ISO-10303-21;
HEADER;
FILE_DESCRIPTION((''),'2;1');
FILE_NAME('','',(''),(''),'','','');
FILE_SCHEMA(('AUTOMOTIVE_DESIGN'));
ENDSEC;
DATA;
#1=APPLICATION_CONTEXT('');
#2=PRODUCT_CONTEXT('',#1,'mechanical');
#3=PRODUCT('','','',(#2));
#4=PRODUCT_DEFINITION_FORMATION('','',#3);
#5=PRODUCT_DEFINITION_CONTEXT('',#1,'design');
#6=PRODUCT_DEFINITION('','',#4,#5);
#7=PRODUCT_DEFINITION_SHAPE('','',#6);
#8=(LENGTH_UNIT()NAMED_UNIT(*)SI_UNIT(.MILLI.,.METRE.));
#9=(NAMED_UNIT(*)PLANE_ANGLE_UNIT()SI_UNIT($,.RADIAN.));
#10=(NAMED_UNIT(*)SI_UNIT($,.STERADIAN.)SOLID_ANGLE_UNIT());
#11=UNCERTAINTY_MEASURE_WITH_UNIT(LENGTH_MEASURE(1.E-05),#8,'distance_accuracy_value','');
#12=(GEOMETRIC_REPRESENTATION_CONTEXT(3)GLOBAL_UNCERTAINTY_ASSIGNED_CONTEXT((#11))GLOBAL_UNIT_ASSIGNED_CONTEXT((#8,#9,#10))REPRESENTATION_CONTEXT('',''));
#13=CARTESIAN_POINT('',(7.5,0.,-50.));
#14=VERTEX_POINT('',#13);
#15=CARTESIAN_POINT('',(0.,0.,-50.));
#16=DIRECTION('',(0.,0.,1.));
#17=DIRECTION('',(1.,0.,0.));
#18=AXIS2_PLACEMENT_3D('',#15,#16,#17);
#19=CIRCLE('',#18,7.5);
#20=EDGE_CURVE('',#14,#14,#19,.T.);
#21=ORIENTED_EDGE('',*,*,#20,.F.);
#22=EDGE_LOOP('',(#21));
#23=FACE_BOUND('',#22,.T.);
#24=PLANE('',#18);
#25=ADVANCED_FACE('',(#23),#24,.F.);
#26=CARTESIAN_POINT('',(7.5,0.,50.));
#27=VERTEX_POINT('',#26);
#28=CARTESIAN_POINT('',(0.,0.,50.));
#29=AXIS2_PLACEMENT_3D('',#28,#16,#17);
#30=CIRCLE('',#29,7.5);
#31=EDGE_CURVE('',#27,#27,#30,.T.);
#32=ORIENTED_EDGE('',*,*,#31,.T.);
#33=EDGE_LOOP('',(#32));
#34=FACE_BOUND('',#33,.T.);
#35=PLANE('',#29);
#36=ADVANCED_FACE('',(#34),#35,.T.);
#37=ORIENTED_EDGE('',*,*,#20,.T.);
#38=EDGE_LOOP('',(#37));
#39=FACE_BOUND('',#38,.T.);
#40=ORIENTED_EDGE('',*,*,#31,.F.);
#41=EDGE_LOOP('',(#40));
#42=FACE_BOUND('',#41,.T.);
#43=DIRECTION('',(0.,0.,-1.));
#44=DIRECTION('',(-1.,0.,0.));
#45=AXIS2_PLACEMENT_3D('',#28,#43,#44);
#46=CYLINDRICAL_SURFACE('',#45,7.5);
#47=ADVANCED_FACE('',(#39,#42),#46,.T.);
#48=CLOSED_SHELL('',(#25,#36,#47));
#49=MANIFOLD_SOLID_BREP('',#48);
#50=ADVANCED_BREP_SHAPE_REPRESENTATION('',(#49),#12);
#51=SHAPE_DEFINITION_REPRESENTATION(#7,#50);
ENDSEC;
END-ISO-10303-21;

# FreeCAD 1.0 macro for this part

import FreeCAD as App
import Part
import Sketcher

doc = App.newDocument("Part")
body = doc.addObject("PartDesign::Body", "Body")

# Sketch on XY plane
sketch1 = doc.addObject("Sketcher::SketchObject", "Sketch")
body.addObject(sketch1)
sketch1.AttachmentSupport = (doc.XY_Plane, [""])
sketch1.MapMode = "FlatFace"
sketch1.addGeometry(Part.Circle(App.Vector(0, 0, 0), App.Vector(0, 0, 1), 8), False)
sketch1.addConstraint([
    Sketcher.Constraint("Coincident", 0, 3, -1, 1),
    Sketcher.Constraint("Diameter", 0, 15.0),
])
pad1 = doc.addObject("PartDesign::Pad", "Pad")
body.addObject(pad1)
pad1.Profile = sketch1
pad1.Length = 100
pad1.Midplane = True

doc.recompute()
